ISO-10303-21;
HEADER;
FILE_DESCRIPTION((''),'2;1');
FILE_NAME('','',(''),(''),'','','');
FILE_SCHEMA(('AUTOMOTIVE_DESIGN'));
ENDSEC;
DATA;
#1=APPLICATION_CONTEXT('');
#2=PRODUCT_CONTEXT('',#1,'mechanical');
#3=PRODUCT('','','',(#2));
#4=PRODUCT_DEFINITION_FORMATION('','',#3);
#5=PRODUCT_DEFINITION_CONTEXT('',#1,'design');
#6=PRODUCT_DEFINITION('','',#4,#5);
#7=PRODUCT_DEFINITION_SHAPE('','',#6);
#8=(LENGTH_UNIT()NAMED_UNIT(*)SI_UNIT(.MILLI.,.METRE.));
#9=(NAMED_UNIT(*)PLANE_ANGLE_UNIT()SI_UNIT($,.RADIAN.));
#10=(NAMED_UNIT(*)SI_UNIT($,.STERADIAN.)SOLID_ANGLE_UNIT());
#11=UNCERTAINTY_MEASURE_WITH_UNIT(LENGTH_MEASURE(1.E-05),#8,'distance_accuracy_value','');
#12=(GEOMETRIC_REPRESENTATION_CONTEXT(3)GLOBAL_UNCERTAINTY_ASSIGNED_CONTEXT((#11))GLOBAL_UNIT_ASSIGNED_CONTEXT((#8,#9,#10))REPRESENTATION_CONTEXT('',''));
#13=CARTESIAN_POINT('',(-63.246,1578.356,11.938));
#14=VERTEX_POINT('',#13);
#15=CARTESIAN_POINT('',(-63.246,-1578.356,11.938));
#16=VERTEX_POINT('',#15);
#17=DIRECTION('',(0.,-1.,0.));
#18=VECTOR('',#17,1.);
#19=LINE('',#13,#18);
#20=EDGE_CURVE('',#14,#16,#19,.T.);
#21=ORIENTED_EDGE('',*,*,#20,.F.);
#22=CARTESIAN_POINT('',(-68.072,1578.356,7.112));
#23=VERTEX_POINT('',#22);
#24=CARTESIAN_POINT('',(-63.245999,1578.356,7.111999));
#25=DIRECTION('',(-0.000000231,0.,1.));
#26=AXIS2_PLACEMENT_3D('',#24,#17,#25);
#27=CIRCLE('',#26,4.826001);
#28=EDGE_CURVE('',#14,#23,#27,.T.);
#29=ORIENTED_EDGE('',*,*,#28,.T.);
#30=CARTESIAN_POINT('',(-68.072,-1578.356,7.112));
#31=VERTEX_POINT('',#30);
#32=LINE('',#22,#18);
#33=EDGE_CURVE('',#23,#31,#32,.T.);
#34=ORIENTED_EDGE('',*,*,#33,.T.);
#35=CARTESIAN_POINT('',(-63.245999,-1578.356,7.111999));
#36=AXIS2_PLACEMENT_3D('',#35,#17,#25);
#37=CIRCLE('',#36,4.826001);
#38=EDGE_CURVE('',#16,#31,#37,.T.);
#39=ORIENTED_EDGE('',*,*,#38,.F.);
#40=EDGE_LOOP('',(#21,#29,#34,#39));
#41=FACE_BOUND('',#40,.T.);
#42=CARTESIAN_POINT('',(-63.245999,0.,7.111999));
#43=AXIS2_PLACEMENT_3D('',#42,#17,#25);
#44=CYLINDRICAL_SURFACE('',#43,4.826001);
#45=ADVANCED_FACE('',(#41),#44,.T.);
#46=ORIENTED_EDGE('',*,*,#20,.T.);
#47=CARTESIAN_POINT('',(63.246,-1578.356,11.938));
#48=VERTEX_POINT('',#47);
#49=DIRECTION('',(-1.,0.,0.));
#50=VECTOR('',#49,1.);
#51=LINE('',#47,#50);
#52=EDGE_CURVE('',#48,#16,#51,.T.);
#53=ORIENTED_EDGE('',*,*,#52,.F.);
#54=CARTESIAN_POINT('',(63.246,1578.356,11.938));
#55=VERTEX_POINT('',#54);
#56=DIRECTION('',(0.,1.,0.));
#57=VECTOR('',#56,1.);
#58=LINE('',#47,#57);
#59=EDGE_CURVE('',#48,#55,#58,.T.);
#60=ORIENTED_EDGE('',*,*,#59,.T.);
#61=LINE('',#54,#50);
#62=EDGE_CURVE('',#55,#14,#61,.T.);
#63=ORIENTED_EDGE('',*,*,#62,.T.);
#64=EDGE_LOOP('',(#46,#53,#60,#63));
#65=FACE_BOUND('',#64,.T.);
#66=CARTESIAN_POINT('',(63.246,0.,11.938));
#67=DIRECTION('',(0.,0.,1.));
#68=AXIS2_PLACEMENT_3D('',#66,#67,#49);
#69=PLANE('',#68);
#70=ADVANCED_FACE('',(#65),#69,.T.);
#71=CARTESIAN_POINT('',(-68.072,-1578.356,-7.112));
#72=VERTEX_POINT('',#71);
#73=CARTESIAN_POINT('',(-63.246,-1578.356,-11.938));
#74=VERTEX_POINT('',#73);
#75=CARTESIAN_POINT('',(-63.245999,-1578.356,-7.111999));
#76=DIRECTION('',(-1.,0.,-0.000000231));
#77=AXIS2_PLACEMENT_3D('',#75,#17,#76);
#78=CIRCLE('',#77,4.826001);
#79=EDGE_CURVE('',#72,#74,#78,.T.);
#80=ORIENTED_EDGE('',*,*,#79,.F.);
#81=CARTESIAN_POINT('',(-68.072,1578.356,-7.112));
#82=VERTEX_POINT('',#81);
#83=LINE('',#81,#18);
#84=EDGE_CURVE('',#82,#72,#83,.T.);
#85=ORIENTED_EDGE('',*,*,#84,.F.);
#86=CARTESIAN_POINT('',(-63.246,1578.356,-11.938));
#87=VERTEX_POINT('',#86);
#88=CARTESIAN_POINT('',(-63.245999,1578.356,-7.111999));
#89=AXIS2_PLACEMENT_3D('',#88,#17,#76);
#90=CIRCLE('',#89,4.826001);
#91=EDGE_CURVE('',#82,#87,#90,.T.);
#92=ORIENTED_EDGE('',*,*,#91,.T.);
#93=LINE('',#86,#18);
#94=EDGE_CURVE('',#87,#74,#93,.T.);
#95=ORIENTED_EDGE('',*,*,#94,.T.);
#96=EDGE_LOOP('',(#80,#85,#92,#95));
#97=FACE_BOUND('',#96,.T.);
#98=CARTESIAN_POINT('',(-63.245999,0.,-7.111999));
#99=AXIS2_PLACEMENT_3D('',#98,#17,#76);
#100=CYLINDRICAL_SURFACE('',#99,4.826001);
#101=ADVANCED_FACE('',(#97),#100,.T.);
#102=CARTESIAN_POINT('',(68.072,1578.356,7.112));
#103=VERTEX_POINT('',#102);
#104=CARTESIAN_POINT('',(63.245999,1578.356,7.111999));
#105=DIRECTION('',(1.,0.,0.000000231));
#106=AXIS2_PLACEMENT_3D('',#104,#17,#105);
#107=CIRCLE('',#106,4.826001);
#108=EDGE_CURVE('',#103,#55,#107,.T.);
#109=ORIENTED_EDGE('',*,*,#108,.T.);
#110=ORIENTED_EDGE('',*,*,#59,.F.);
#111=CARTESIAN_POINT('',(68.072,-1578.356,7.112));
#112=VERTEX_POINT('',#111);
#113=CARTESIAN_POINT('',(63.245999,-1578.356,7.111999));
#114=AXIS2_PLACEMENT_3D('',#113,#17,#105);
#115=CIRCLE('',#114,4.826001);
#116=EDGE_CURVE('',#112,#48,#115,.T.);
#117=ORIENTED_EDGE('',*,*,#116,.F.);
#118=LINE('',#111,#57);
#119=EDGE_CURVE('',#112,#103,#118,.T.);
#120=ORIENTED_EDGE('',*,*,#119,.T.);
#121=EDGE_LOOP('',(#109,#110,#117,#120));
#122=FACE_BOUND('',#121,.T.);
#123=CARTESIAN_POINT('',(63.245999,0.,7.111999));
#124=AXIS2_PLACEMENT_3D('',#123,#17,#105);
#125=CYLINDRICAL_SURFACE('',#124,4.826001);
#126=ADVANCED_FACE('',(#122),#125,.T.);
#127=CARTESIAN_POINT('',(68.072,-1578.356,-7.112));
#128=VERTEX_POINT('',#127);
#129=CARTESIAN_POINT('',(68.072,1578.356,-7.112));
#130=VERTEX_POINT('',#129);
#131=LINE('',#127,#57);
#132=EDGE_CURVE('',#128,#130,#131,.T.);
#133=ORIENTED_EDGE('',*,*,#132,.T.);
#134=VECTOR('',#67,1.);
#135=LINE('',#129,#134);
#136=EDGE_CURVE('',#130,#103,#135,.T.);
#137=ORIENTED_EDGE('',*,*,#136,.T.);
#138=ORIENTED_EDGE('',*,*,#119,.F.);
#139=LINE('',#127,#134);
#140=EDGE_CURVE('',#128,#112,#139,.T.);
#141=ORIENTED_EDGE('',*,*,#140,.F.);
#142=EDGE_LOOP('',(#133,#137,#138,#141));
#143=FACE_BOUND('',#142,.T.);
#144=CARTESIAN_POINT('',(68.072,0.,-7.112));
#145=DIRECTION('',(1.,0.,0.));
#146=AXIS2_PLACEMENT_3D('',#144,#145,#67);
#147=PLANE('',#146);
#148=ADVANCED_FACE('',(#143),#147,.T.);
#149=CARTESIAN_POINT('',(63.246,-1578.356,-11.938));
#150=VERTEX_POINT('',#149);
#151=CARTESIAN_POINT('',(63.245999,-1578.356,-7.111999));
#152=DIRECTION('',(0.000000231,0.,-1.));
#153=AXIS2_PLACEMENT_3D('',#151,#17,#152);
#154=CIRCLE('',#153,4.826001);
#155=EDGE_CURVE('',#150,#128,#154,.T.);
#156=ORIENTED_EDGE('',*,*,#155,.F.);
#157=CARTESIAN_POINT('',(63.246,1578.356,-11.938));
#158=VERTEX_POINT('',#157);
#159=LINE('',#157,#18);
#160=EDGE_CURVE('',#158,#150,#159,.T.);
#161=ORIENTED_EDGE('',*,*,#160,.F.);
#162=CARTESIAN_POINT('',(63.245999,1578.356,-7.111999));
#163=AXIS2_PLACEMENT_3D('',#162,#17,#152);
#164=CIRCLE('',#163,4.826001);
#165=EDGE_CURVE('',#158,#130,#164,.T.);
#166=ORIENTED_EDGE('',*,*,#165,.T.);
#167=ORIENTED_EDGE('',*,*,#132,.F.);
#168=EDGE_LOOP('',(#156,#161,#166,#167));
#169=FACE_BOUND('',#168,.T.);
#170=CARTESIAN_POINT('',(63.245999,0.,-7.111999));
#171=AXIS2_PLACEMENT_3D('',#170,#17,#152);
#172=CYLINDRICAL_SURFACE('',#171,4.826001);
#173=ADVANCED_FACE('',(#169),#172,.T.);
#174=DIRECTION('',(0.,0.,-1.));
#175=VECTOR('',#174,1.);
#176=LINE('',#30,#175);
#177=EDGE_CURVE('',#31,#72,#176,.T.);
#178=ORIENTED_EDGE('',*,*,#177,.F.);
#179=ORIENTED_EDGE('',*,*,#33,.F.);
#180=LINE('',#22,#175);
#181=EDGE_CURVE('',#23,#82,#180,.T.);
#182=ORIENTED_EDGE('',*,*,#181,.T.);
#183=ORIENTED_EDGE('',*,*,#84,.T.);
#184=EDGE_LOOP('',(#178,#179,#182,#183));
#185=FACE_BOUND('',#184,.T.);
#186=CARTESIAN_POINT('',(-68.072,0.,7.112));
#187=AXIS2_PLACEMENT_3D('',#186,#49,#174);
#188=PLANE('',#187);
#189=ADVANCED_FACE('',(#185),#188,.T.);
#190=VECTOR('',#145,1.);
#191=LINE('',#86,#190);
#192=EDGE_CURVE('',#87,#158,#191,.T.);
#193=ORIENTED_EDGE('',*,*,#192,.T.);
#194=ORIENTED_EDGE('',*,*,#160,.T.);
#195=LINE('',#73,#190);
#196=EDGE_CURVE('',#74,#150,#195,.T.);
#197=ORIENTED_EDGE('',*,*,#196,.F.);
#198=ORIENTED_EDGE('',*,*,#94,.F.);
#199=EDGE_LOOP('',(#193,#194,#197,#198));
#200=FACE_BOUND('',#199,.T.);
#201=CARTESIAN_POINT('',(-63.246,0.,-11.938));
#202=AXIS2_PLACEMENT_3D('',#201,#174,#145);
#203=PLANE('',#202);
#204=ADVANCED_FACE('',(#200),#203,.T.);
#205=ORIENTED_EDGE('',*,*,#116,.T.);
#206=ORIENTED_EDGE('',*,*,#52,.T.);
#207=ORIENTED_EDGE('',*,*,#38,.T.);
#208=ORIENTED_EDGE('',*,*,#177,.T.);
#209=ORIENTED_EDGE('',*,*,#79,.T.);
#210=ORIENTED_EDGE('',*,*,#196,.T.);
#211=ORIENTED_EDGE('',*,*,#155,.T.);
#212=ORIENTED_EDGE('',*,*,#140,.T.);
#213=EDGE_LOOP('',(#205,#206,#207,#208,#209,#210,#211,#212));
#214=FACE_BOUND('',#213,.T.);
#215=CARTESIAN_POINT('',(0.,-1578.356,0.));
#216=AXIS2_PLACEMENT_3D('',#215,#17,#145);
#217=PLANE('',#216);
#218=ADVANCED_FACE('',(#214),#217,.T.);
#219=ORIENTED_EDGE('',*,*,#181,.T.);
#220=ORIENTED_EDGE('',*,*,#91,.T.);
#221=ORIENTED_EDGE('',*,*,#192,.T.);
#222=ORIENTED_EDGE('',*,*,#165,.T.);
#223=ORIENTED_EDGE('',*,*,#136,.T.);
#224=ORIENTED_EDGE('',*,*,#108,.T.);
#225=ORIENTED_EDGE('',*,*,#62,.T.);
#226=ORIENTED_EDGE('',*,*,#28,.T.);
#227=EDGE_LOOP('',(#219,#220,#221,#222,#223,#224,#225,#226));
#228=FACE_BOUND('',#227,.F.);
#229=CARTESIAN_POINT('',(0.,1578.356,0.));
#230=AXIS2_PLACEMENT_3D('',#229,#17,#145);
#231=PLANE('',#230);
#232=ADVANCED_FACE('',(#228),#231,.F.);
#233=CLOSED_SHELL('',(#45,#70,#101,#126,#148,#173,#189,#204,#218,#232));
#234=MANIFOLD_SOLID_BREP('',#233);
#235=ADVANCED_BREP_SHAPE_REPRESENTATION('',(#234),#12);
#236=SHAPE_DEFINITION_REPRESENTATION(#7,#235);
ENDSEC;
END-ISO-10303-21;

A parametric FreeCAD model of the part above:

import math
import FreeCAD as App
import Part
import Sketcher

V = App.Vector
Q = App.Units.Quantity

doc = App.newDocument("Part")
body = doc.addObject("PartDesign::Body", "Body")

# Sketch on XZ plane
sketch1 = body.newObject("Sketcher::SketchObject", "Sketch")
sketch1.AttachmentSupport = (doc.getObject("XZ_Plane"), [""])
sketch1.MapMode = "FlatFace"
sketch1.addGeometry(Part.LineSegment(V(63.246, 11.938, 0), V(-63.246, 11.938, 0)), False)
sketch1.addGeometry(Part.ArcOfCircle(Part.Circle(V(-63.245999, 7.111999, 0), V(0, 0, 1), 4.826001), math.radians(90.000013), math.radians(179.999987)), False)
sketch1.addGeometry(Part.LineSegment(V(-68.072, 7.112, 0), V(-68.072, -7.112, 0)), False)
sketch1.addGeometry(Part.ArcOfCircle(Part.Circle(V(-63.245999, -7.111999, 0), V(0, 0, 1), 4.826001), math.radians(-179.999987), math.radians(-90.000013)), False)
sketch1.addGeometry(Part.LineSegment(V(-63.246, -11.938, 0), V(63.246, -11.938, 0)), False)
sketch1.addGeometry(Part.ArcOfCircle(Part.Circle(V(63.245999, -7.111999, 0), V(0, 0, 1), 4.826001), math.radians(-89.999987), math.radians(-0.000013)), False)
sketch1.addGeometry(Part.LineSegment(V(68.072, -7.112, 0), V(68.072, 7.112, 0)), False)
sketch1.addGeometry(Part.ArcOfCircle(Part.Circle(V(63.245999, 7.111999, 0), V(0, 0, 1), 4.826001), math.radians(0.000013), math.radians(89.999987)), False)
sketch1.addConstraint(Sketcher.Constraint("Tangent", 0, 2, 1, 1))
sketch1.addConstraint(Sketcher.Constraint("Tangent", 1, 2, 2, 1))
sketch1.addConstraint(Sketcher.Constraint("Tangent", 2, 2, 3, 1))
sketch1.addConstraint(Sketcher.Constraint("Tangent", 3, 2, 4, 1))
sketch1.addConstraint(Sketcher.Constraint("Tangent", 4, 2, 5, 1))
sketch1.addConstraint(Sketcher.Constraint("Tangent", 5, 2, 6, 1))
sketch1.addConstraint(Sketcher.Constraint("Tangent", 6, 2, 7, 1))
sketch1.addConstraint(Sketcher.Constraint("Tangent", 7, 2, 0, 1))
sketch1.addConstraint(Sketcher.Constraint("Horizontal", 0))
sketch1.addConstraint(Sketcher.Constraint("Vertical", 2))
sketch1.addConstraint(Sketcher.Constraint("Horizontal", 4))
sketch1.addConstraint(Sketcher.Constraint("Vertical", 6))
sketch1.addConstraint(Sketcher.Constraint("Equal", 1, 3))
sketch1.addConstraint(Sketcher.Constraint("Equal", 3, 5))
sketch1.addConstraint(Sketcher.Constraint("Equal", 5, 7))
sketch1.addConstraint(Sketcher.Constraint("Symmetric", 1, 3, 5, 3, -1, 1))
sketch1.addConstraint(Sketcher.Constraint("Radius", 1, Q("0.19 in")))
sketch1.addConstraint(Sketcher.Constraint("DistanceX", 0, 2, 0, 1, Q("4.98 in")))
sketch1.addConstraint(Sketcher.Constraint("DistanceY", 2, 2, 2, 1, Q("0.56 in")))
pad1 = body.newObject("PartDesign::Pad", "Pad")
pad1.Profile = sketch1
pad1.Length = Q("124.28 in")
pad1.Midplane = True

doc.recompute()
